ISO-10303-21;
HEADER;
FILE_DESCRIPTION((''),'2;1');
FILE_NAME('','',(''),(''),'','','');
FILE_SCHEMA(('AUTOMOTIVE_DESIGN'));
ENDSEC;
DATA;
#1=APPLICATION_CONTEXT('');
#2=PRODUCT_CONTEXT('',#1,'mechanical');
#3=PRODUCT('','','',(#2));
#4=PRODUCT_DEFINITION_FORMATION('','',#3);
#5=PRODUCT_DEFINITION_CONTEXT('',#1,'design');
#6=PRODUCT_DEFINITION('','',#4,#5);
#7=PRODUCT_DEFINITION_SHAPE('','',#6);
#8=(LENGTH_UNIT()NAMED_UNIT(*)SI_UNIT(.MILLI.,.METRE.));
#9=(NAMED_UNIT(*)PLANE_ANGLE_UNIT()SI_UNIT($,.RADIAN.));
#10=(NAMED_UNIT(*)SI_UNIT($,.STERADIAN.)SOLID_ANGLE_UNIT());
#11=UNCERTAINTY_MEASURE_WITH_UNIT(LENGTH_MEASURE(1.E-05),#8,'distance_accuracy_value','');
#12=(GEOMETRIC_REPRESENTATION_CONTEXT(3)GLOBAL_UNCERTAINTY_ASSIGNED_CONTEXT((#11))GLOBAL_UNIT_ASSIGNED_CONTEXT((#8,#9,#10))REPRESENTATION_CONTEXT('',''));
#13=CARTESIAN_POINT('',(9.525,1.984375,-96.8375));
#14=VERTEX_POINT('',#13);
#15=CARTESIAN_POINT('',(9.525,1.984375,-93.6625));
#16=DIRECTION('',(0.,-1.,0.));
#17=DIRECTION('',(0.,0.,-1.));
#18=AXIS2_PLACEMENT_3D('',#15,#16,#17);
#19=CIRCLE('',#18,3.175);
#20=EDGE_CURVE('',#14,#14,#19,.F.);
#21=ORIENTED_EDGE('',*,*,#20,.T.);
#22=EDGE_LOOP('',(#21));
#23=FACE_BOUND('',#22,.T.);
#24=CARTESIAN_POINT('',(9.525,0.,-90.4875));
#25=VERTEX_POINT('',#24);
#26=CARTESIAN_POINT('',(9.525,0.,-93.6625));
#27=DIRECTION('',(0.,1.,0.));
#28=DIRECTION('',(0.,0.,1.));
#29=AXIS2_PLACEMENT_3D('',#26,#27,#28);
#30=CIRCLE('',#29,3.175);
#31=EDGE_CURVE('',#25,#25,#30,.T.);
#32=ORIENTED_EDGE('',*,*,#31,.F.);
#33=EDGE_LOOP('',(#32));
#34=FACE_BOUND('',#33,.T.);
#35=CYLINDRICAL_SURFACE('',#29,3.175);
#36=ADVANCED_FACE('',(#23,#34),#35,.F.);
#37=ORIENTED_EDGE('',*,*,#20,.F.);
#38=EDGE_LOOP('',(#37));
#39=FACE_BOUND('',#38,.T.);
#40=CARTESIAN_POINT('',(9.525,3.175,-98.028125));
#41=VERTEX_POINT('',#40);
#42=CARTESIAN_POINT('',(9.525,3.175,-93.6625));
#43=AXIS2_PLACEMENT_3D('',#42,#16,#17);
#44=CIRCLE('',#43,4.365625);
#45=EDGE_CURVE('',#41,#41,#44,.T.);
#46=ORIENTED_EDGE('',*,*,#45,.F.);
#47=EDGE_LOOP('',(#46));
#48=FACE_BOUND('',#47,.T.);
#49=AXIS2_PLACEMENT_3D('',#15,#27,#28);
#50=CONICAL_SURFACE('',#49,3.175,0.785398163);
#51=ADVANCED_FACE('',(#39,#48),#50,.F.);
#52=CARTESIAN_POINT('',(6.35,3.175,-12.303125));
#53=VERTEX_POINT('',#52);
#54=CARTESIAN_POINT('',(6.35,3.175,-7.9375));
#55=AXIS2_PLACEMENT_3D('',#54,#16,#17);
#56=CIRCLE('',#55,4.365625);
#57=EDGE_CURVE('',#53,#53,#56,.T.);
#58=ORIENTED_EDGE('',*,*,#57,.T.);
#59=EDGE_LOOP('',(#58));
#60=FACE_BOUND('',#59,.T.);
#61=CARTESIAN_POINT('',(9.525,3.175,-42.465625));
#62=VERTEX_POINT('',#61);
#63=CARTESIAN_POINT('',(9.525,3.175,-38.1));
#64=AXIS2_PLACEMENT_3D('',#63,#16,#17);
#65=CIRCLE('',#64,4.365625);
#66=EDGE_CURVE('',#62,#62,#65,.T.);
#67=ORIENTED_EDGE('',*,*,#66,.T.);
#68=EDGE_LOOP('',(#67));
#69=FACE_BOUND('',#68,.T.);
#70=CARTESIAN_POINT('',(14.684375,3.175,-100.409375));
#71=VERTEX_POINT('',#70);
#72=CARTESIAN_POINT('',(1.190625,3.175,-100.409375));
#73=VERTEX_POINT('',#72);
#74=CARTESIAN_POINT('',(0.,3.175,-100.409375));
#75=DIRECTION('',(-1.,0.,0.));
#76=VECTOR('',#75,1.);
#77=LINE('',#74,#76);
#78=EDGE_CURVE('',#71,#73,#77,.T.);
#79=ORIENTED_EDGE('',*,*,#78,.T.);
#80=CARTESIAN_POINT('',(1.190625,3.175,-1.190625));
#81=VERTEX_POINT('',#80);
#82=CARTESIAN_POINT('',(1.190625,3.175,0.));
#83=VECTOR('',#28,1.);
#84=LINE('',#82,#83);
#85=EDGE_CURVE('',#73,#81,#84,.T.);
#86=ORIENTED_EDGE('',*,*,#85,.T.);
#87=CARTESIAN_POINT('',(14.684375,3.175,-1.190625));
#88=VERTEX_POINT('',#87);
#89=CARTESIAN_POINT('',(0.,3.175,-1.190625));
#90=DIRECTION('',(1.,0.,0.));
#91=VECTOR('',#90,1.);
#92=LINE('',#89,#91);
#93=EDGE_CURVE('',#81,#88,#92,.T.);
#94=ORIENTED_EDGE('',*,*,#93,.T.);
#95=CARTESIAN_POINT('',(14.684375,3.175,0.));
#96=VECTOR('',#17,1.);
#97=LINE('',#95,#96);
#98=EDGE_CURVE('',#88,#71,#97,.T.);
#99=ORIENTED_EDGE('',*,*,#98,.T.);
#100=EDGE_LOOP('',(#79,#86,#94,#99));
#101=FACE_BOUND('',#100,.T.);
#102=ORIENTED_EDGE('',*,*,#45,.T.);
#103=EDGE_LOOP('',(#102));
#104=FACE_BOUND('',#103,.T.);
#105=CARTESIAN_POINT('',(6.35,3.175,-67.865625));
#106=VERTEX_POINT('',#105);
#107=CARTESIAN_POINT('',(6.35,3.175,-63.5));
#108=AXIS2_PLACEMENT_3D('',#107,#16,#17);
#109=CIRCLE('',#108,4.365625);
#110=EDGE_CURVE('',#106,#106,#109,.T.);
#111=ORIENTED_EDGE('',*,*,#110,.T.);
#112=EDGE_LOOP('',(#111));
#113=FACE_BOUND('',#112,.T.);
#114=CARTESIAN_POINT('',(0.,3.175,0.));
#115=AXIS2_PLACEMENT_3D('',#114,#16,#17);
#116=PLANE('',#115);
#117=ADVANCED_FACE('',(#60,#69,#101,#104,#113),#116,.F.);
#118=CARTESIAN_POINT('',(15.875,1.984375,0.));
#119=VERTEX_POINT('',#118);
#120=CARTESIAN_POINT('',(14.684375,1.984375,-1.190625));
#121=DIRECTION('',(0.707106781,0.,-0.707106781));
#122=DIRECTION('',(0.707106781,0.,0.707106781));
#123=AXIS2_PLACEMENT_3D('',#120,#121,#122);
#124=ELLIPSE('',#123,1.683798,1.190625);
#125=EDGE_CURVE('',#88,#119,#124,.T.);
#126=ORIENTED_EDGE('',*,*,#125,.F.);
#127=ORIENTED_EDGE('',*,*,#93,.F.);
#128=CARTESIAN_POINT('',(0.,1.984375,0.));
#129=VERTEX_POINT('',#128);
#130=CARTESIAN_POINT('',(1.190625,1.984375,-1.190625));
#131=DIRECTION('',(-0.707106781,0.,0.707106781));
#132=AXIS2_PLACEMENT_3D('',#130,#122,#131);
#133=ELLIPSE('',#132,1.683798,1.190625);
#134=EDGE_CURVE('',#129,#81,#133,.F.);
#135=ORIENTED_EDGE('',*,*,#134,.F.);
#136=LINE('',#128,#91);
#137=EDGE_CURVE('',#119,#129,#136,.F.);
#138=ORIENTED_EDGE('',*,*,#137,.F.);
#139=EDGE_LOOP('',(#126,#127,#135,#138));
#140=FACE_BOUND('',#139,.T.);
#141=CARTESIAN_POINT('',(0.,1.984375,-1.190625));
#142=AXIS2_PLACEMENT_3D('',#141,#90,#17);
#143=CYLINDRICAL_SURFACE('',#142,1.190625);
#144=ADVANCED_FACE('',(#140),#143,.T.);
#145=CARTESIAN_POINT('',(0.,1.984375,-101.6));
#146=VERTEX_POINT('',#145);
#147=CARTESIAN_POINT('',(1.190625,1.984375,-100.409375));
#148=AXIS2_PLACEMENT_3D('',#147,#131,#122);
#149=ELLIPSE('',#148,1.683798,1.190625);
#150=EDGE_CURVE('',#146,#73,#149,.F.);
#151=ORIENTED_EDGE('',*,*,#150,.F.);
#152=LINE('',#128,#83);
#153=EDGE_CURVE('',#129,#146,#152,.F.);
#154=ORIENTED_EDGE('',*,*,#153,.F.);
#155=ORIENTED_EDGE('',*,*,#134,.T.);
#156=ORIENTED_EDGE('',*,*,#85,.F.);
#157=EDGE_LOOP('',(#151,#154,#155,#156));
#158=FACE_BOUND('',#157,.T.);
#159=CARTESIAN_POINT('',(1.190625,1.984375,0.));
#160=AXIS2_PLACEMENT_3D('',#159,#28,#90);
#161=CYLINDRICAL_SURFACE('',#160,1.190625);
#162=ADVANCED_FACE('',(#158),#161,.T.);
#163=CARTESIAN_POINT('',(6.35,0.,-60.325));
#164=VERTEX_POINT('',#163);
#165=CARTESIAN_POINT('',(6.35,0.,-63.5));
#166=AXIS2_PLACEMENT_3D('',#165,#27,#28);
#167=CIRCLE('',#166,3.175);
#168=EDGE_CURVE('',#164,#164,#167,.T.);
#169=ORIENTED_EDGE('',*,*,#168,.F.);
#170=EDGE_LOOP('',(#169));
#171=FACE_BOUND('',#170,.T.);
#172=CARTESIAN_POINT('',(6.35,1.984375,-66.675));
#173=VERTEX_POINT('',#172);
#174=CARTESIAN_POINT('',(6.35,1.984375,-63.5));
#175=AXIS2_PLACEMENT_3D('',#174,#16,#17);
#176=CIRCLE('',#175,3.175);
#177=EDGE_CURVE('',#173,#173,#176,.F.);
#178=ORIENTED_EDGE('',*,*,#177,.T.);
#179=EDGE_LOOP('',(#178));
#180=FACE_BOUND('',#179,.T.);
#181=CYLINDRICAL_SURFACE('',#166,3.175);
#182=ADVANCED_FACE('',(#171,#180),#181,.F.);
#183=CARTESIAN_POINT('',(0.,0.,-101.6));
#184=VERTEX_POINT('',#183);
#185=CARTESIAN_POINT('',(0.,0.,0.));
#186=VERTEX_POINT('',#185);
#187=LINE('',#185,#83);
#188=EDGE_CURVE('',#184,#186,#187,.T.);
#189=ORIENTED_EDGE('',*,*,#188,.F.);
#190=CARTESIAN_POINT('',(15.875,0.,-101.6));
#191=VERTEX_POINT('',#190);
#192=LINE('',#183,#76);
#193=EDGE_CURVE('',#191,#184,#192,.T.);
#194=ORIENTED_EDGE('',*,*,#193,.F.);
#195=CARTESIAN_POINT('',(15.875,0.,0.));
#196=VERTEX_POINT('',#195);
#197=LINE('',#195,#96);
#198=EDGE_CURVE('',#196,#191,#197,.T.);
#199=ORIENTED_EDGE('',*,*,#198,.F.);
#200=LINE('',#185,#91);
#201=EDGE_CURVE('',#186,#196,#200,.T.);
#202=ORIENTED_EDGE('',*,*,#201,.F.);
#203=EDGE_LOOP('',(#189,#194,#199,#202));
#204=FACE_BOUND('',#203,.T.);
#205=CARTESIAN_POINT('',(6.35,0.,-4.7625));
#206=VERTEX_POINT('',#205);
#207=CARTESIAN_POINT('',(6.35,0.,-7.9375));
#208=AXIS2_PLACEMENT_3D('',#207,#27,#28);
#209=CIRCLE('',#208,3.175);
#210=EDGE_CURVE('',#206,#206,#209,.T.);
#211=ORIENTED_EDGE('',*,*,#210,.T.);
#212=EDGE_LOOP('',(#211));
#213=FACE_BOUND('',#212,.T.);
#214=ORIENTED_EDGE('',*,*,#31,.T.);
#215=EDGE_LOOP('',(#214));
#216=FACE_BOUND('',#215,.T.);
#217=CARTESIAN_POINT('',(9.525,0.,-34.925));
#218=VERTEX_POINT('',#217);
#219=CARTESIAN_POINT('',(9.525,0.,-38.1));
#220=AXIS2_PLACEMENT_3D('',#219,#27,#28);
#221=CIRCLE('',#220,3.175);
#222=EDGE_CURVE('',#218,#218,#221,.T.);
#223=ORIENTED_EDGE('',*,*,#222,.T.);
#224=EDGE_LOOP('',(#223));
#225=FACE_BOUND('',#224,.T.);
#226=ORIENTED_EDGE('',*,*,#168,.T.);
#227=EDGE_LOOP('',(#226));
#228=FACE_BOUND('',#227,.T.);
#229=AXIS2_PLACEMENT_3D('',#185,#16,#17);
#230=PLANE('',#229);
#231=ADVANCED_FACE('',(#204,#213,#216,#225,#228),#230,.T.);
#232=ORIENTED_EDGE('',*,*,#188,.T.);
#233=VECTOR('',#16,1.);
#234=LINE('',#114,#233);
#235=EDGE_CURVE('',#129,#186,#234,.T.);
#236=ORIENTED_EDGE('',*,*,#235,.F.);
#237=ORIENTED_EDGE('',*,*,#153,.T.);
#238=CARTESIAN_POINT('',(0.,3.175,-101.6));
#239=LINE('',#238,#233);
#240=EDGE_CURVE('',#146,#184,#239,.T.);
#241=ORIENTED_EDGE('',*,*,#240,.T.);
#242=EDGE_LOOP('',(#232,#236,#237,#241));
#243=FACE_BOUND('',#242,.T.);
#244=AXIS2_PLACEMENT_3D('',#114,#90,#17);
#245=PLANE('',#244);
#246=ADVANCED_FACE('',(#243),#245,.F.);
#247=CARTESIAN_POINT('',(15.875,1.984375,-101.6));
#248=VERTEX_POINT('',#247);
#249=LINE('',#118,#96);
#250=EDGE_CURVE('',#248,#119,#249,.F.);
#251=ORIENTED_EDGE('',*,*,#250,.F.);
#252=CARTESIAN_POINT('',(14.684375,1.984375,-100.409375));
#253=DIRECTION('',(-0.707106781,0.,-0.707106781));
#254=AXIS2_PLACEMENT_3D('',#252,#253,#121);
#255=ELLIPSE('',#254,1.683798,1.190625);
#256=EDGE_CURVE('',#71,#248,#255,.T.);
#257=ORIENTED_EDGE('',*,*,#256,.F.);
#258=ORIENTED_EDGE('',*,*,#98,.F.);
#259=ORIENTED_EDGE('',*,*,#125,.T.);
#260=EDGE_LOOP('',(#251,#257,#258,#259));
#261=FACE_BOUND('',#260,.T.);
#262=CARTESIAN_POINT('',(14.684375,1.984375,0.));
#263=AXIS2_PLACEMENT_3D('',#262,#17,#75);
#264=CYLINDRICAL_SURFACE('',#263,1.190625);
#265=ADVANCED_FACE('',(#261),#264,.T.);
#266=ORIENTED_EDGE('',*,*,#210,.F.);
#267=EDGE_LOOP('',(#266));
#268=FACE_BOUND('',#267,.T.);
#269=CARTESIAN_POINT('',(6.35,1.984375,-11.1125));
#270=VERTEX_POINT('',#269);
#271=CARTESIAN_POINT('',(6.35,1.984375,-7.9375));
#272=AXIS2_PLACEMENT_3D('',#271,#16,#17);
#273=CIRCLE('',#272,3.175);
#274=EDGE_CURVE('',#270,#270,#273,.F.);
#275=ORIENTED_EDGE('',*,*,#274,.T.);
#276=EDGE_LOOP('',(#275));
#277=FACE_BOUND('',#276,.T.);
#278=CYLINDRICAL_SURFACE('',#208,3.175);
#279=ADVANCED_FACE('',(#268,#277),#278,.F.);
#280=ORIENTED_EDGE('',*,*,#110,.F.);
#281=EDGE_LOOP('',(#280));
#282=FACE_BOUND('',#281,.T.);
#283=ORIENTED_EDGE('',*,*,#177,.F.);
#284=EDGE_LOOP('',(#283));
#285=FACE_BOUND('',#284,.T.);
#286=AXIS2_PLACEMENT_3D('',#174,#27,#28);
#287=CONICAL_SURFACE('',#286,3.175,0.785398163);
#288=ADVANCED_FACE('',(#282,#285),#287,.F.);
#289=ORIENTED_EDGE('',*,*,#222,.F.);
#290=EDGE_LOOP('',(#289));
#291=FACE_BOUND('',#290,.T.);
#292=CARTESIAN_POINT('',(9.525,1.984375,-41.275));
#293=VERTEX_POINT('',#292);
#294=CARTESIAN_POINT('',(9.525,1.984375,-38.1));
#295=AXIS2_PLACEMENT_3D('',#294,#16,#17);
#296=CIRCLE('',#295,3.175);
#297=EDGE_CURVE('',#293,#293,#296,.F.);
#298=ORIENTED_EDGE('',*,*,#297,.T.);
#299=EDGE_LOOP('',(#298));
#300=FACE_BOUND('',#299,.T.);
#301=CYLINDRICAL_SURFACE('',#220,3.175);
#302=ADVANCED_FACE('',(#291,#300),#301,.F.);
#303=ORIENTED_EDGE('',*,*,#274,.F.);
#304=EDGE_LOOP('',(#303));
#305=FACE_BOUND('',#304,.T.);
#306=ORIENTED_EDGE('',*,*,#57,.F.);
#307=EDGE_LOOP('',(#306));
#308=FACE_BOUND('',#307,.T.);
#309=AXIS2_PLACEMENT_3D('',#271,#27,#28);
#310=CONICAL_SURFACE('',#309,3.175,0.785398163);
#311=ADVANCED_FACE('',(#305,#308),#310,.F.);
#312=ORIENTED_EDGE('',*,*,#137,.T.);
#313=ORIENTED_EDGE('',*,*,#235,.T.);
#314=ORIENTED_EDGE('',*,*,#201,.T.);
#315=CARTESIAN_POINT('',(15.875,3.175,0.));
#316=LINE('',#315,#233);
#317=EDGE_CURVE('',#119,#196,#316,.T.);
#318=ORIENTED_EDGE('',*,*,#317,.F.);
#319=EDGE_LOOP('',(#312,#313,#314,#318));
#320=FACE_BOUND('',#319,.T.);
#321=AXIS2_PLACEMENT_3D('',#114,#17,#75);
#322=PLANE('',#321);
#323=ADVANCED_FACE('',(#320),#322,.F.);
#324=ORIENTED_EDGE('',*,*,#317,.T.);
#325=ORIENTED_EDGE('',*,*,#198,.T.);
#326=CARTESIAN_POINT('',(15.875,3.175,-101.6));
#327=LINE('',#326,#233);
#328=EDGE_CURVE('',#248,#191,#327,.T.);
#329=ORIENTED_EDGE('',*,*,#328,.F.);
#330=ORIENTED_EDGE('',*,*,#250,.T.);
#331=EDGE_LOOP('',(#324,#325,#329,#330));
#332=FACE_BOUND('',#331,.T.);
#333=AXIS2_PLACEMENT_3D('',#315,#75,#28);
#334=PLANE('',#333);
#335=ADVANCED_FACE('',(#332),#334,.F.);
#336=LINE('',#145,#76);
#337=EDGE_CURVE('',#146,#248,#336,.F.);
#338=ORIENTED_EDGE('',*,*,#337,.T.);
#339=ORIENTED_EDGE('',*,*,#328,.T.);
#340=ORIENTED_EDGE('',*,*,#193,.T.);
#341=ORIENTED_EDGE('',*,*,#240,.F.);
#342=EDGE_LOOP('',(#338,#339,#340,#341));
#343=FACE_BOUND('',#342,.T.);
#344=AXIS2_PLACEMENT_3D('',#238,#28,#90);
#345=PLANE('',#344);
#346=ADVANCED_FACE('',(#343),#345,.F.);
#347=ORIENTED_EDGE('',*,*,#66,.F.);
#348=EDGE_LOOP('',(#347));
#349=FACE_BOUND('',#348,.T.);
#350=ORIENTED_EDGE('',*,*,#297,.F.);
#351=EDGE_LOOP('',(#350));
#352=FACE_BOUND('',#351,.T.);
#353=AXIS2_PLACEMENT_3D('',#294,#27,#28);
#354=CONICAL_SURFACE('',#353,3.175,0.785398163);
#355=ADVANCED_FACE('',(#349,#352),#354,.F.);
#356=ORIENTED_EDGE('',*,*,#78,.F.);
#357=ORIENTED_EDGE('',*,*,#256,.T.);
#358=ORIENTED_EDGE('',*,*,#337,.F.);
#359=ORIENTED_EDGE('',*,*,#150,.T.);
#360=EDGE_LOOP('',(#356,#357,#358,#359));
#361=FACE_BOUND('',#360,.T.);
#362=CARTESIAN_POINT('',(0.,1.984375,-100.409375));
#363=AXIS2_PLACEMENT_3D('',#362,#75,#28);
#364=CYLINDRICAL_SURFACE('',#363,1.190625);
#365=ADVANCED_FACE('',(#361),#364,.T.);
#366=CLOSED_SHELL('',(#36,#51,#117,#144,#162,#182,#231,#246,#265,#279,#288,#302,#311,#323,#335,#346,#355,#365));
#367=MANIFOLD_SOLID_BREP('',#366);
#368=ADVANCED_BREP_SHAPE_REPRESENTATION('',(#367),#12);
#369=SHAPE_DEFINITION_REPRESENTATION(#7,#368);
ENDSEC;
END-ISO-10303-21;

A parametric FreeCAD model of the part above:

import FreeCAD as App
import Part
import Sketcher
from FreeCAD import Vector
Q = App.Units.Quantity


def edges_at(feature, points):
    """Names of the edges that pass closest to the given points."""
    edges = feature.Shape.Edges
    near = lambda p: min(range(len(edges)), key=lambda i: edges[i].distToShape(Part.Vertex(*p))[0])
    return sorted({f"Edge{near(p) + 1}" for p in points})


def add_polygon(sketch, points):
    """Adds a closed chain of lines whose ends are joined by coincident constraints."""
    first, n = sketch.GeometryCount, len(points)
    for a, b in zip(points, points[1:] + points[:1]):
        sketch.addGeometry(Part.LineSegment(App.Vector(*a, 0), App.Vector(*b, 0)), False)
    for i in range(n):
        sketch.addConstraint(Sketcher.Constraint("Coincident", first + i, 2, first + (i + 1) % n, 1))

doc = App.newDocument("Part")
body = doc.addObject("PartDesign::Body", "Body")

sketch1 = doc.addObject("Sketcher::SketchObject", "Sketch")
body.addObject(sketch1)
sketch1.AttachmentSupport = (doc.XZ_Plane, [""])
sketch1.MapMode = "FlatFace"
add_polygon(sketch1, [(0, -102), (0, 0), (16, 0), (16, -102)])
sketch1.addConstraint(Sketcher.Constraint("Vertical", 0))
sketch1.addConstraint(Sketcher.Constraint("Horizontal", 1))
sketch1.addConstraint(Sketcher.Constraint("Vertical", 2))
sketch1.addConstraint(Sketcher.Constraint("Horizontal", 3))
sketch1.addConstraint(Sketcher.Constraint("Coincident", 0, 2, -1, 1))
sketch1.addConstraint(Sketcher.Constraint("DistanceY", 0, 1, 0, 2, Q("4 in")))
sketch1.addConstraint(Sketcher.Constraint("DistanceX", 1, 1, 1, 2, Q("0.625 in")))
pad1 = doc.addObject("PartDesign::Pad", "Pad")
body.addObject(pad1)
pad1.Profile = sketch1
pad1.Length = Q("0.125 in")
pad1.Reversed = True

sketch2 = doc.addObject("Sketcher::SketchObject", "Sketch001")
body.addObject(sketch2)
sketch2.AttachmentSupport = (doc.XZ_Plane, [""])
sketch2.MapMode = "FlatFace"
sketch2.AttachmentOffset = App.Placement(Vector(0, 0, -0.125 * 25.4), App.Rotation())
sketch2.addGeometry(Part.Circle(Vector(6.3, -63.5, 0), Vector(0, 0, 1), 3.2), False)
sketch2.addGeometry(Part.Circle(Vector(9.5, -93.7, 0), Vector(0, 0, 1), 3.2), False)
sketch2.addGeometry(Part.Circle(Vector(9.5, -38.1, 0), Vector(0, 0, 1), 3.2), False)
sketch2.addGeometry(Part.Circle(Vector(6.3, -7.9, 0), Vector(0, 0, 1), 3.2), False)
sketch2.addConstraint(Sketcher.Constraint("Equal", 0, 1))
sketch2.addConstraint(Sketcher.Constraint("Equal", 1, 2))
sketch2.addConstraint(Sketcher.Constraint("Equal", 2, 3))
sketch2.addConstraint(Sketcher.Constraint("Vertical", 1, 3, 2, 3))
sketch2.addConstraint(Sketcher.Constraint("Vertical", 0, 3, 3, 3))
sketch2.addConstraint(Sketcher.Constraint("Diameter", 0, Q("0.25 in")))
sketch2.addConstraint(Sketcher.Constraint("DistanceY", 0, 3, 2, 3, Q("1 in")))
sketch2.addConstraint(Sketcher.Constraint("DistanceY", 0, 3, -1, 1, Q("2.5 in")))
sketch2.addConstraint(Sketcher.Constraint("DistanceX", -1, 1, 0, 3, Q("0.25 in")))
sketch2.addConstraint(Sketcher.Constraint("DistanceX", -1, 1, 1, 3, Q("0.375 in")))
sketch2.addConstraint(Sketcher.Constraint("DistanceY", 1, 3, -1, 1, Q("3.6875 in")))
sketch2.addConstraint(Sketcher.Constraint("DistanceY", 3, 3, -1, 1, Q("0.3125 in")))
pocket1 = doc.addObject("PartDesign::Pocket", "Pocket")
body.addObject(pocket1)
pocket1.Profile = sketch2
pocket1.Type = "ThroughAll"
pocket1.Reversed = True
doc.recompute()

chamfer = doc.addObject("PartDesign::Chamfer", "Chamfer")
body.addObject(chamfer)
chamfer.Base = (pocket1, edges_at(pocket1, [
    (6.35, 3.175, -66.675),
    (9.525, 3.175, -96.838),
    (9.525, 3.175, -41.275),
    (6.35, 3.175, -11.113),
]))
chamfer.Size = Q("0.046875 in")
doc.recompute()

fillet = doc.addObject("PartDesign::Fillet", "Fillet")
body.addObject(fillet)
fillet.Base = (chamfer, edges_at(chamfer, [
    (15.875, 3.175, -50.8),
    (7.938, 3.175, -101.6),
    (0, 3.175, -50.8),
    (7.938, 3.175, 0),
]))
fillet.Radius = Q("0.046875 in")

doc.recompute()
